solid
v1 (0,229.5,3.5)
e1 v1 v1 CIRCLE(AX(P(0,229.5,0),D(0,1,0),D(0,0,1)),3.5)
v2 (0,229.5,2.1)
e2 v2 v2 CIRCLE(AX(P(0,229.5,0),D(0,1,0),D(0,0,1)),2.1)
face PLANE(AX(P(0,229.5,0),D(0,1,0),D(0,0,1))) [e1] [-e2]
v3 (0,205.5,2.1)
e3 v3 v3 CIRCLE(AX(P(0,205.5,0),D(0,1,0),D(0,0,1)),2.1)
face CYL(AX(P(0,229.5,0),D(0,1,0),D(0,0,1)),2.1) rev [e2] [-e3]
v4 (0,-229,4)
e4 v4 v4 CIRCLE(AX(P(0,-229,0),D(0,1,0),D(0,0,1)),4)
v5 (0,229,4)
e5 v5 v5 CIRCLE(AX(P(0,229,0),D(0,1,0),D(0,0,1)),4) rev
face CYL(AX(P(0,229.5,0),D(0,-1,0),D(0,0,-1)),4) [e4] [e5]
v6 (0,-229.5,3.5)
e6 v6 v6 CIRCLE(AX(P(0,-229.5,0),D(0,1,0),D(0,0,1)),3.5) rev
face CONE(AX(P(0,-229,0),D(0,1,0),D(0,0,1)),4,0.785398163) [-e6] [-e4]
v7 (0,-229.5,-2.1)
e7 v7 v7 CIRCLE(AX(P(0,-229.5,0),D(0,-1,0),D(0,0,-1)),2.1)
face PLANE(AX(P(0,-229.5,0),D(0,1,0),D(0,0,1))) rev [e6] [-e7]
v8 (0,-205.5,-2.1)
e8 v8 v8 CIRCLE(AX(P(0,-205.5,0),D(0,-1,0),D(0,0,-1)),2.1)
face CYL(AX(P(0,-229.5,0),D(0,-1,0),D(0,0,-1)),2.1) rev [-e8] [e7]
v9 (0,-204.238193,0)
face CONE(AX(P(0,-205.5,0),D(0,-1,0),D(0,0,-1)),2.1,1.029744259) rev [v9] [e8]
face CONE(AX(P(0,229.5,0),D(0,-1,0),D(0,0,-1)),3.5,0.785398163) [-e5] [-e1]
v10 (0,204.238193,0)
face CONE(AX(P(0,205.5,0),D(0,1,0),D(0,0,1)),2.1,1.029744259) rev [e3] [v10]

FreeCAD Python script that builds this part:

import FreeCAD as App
import Part
import Sketcher
from FreeCAD import Vector
Q = App.Units.Quantity


def edges_at(feature, points):
    """Names of the edges that pass closest to the given points."""
    edges = feature.Shape.Edges
    near = lambda p: min(range(len(edges)), key=lambda i: edges[i].distToShape(Part.Vertex(*p))[0])
    return sorted({f"Edge{near(p) + 1}" for p in points})


def add_polygon(sketch, points):
    """Adds a closed chain of lines whose ends are joined by coincident constraints."""
    first, n = sketch.GeometryCount, len(points)
    for a, b in zip(points, points[1:] + points[:1]):
        sketch.addGeometry(Part.LineSegment(App.Vector(*a, 0), App.Vector(*b, 0)), False)
    for i in range(n):
        sketch.addConstraint(Sketcher.Constraint("Coincident", first + i, 2, first + (i + 1) % n, 1))

doc = App.newDocument("Part")
body = doc.addObject("PartDesign::Body", "Body")

# Sketch on XZ plane
sketch1 = body.newObject("Sketcher::SketchObject", "Sketch")
sketch1.AttachmentSupport = (doc.getObject("XZ_Plane"), [""])
sketch1.MapMode = "FlatFace"
sketch1.addGeometry(Part.Circle(Vector(0, 0, 0), Vector(0, 0, 1), 4), False)
sketch1.addConstraint([
    Sketcher.Constraint("Coincident", 0, 3, -1, 1),
    Sketcher.Constraint("Diameter", 0, Q("8 mm")),
])
pad1 = body.newObject("PartDesign::Pad", "Pad")
pad1.Profile = sketch1
pad1.Length = 459
pad1.Midplane = True
doc.recompute()

chamfer = body.newObject("PartDesign::Chamfer", "Chamfer")
chamfer.Base = (pad1, edges_at(pad1, [(0, -229.5, -4), (0, 229.5, -4)]))
chamfer.Size = 0.5

# Sketch on YZ plane
sketch2 = body.newObject("Sketcher::SketchObject", "Sketch001")
sketch2.AttachmentSupport = (doc.getObject("YZ_Plane"), [""])
sketch2.MapMode = "FlatFace"
add_polygon(sketch2, [(204.2, 0), (229.5, 0), (229.5, 2.1), (205.5, 2.1)])  # lines 0-3
sketch2.addConstraint([
    Sketcher.Constraint("Horizontal", 0),
    Sketcher.Constraint("Vertical", 1),
    Sketcher.Constraint("Horizontal", 2),
    Sketcher.Constraint("PointOnObject", 0, 2, -1),
    Sketcher.Constraint("DistanceX", 2, 2, 2, 1, Q("24 mm")),
    Sketcher.Constraint("Angle", 3, Q("-121 deg")),
    Sketcher.Constraint("DistanceY", 1, 1, 1, 2, Q("2.1 mm")),
    Sketcher.Constraint("DistanceX", -1, 1, 0, 2, Q("229.5 mm")),
])
groove = body.newObject("PartDesign::Groove", "Groove")
groove.Profile = sketch2
groove.ReferenceAxis = (sketch2, ["H_Axis"])
groove.Angle = 360
doc.recompute()

mirrored = body.newObject("PartDesign::Mirrored", "Mirrored")
mirrored.Originals = [groove]
mirrored.MirrorPlane = (doc.getObject("XZ_Plane"), [""])
body.Tip = mirrored

doc.recompute()
